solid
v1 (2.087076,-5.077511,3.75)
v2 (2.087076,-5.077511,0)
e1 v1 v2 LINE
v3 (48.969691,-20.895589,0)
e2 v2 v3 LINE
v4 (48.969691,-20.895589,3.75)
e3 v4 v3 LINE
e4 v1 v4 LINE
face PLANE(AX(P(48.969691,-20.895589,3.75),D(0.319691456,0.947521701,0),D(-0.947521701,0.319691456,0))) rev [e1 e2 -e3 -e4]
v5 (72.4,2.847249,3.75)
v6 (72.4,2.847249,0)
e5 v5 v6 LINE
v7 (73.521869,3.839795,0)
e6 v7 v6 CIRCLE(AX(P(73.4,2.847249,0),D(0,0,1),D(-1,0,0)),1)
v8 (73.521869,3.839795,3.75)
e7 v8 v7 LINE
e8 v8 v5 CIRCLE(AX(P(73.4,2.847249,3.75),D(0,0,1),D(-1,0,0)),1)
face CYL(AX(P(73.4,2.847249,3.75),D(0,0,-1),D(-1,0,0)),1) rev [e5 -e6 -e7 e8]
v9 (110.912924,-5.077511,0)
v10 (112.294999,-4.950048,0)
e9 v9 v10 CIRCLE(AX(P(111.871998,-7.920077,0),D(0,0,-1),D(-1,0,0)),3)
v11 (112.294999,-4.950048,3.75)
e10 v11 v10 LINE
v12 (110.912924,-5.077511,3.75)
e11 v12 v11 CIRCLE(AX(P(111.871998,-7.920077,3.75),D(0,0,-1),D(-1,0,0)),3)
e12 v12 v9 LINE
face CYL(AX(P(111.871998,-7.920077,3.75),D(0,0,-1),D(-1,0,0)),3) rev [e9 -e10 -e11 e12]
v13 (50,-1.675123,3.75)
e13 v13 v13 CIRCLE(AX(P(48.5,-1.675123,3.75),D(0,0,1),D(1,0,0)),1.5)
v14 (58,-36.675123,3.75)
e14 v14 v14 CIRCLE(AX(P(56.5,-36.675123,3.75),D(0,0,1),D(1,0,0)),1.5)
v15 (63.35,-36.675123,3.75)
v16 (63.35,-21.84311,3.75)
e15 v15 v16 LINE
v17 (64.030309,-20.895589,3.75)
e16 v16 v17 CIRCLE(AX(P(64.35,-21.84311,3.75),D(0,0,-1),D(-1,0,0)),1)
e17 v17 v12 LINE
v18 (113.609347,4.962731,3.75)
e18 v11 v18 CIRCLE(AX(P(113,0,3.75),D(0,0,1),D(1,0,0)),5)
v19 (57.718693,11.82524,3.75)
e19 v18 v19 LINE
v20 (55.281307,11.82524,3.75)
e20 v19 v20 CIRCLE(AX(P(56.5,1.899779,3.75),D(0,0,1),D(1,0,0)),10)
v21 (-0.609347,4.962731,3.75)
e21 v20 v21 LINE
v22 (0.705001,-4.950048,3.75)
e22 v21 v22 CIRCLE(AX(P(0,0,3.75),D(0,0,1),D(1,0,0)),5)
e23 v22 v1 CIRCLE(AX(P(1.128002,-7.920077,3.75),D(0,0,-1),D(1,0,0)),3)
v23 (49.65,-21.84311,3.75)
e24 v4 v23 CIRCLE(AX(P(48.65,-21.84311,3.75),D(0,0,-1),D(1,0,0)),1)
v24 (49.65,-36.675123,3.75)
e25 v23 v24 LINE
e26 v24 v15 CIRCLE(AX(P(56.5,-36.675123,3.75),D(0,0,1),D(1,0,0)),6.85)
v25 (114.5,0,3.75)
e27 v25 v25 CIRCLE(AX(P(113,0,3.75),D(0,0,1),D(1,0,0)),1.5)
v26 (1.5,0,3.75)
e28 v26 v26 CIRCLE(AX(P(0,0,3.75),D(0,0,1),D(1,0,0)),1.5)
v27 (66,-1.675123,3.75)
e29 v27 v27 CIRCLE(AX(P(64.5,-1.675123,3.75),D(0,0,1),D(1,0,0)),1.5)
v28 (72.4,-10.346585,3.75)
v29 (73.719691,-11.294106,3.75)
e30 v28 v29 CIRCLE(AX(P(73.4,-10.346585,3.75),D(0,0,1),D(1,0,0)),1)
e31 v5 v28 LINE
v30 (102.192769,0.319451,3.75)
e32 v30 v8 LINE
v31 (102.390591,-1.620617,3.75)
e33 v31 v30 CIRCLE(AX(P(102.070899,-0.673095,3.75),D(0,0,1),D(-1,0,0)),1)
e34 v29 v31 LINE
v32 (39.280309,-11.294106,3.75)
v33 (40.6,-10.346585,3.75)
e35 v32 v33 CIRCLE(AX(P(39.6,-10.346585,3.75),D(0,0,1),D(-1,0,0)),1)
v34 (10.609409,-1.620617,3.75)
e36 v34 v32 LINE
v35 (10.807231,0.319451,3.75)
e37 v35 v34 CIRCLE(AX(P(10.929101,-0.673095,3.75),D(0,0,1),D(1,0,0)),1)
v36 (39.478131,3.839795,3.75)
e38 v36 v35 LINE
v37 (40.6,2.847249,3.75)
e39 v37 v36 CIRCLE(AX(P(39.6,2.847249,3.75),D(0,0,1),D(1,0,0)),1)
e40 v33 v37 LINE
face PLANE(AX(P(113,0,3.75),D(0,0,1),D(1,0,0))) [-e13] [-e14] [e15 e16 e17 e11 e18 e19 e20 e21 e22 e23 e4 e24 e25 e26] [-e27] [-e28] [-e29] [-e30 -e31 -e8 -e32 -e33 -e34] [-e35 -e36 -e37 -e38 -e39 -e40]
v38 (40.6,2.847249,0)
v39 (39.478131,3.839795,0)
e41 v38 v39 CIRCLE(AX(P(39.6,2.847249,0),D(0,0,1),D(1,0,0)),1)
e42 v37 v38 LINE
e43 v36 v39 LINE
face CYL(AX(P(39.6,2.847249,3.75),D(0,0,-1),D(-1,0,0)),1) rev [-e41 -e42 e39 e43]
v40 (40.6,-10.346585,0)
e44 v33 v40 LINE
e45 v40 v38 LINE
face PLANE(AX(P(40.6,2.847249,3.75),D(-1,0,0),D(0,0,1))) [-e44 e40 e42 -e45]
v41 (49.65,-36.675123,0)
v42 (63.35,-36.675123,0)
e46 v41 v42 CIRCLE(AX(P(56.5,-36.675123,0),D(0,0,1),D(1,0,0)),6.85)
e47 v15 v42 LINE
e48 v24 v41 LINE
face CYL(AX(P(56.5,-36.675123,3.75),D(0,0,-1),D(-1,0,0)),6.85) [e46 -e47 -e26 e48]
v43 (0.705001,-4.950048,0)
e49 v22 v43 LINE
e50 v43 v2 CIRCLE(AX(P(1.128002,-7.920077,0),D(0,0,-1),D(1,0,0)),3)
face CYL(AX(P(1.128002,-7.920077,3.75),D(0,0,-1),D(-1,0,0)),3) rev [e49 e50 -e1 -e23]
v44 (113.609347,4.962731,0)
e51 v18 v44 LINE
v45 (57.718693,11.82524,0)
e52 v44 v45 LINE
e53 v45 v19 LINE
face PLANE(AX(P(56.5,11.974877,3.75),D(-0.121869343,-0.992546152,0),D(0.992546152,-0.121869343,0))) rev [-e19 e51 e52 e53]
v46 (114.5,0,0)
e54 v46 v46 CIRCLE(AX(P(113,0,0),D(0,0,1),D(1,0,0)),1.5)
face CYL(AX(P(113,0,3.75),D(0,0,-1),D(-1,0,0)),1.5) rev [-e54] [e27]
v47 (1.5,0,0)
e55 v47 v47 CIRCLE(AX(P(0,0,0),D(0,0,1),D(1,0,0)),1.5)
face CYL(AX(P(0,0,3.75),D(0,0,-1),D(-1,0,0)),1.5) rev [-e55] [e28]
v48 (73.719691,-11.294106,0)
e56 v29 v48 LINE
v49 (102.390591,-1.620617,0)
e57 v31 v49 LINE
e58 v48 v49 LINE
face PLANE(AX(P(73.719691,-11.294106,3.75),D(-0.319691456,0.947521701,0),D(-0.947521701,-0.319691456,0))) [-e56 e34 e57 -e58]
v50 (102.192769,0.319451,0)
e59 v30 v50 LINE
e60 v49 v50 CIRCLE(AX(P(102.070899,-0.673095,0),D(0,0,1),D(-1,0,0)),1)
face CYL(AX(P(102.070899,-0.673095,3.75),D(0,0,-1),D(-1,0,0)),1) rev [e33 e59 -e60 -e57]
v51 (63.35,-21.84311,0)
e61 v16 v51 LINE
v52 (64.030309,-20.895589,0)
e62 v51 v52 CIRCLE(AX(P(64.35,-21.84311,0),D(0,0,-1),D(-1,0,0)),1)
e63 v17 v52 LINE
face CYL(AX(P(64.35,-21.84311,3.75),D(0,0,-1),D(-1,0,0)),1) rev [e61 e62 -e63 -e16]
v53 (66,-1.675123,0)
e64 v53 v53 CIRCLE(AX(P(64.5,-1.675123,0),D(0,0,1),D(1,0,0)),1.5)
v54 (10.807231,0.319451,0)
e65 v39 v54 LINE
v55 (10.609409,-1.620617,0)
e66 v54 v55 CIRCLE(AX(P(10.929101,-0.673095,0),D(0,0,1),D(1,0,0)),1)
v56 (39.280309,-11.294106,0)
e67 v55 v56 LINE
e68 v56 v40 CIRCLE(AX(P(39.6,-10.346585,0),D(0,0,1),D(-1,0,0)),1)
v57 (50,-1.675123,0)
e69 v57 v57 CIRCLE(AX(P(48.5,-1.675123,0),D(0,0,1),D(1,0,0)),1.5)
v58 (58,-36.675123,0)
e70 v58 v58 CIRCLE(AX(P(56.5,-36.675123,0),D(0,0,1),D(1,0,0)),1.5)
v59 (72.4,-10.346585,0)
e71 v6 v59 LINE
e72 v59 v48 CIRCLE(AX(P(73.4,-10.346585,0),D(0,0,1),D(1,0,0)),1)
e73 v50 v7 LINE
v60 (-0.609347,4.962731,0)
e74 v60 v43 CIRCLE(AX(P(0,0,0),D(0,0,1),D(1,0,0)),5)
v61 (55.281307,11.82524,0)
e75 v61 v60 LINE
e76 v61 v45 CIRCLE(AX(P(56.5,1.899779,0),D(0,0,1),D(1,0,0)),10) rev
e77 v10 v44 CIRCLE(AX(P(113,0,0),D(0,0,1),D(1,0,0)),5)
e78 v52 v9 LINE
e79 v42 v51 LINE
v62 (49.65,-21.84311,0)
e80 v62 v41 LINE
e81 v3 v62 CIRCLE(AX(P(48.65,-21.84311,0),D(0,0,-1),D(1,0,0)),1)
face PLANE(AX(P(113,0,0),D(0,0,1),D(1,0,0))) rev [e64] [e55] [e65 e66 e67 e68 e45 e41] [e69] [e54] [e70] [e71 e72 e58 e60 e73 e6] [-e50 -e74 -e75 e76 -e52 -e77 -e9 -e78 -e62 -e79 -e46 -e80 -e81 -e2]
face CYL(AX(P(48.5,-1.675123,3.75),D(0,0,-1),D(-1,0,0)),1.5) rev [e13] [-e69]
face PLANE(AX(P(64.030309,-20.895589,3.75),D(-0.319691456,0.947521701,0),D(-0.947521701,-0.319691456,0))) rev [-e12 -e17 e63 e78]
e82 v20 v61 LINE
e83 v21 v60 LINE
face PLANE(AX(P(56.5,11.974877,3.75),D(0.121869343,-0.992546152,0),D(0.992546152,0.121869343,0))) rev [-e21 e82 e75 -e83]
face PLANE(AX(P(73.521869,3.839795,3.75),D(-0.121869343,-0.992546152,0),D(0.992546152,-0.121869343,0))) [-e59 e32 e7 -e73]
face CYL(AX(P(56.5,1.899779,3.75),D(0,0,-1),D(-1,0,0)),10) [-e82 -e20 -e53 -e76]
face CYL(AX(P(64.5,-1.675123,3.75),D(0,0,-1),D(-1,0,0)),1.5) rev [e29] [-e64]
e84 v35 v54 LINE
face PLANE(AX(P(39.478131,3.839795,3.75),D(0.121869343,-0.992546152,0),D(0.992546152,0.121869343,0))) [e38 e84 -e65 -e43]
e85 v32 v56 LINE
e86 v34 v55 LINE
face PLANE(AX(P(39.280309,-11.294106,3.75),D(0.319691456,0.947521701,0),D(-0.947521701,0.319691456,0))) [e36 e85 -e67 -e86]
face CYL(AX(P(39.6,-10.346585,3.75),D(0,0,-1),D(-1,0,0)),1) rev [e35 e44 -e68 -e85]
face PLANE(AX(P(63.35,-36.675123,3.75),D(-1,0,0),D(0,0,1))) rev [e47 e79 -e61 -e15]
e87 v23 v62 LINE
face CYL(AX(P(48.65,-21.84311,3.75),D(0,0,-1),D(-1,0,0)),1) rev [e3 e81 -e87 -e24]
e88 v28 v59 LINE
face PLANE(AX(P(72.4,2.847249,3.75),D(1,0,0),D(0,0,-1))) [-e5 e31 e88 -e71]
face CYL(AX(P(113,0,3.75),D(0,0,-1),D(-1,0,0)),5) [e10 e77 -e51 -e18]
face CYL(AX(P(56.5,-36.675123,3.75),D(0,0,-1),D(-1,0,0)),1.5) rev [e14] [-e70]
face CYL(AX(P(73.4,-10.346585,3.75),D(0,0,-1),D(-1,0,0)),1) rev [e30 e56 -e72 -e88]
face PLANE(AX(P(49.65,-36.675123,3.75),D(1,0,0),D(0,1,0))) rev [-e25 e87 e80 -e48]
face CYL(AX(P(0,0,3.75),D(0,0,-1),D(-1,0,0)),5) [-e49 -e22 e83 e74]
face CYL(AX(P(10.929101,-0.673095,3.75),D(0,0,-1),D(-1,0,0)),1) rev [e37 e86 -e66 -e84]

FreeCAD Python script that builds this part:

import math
import FreeCAD as App
import Part
import Sketcher
from FreeCAD import Vector
Q = App.Units.Quantity


def edges_at(feature, points):
    """Names of the edges that pass closest to the given points."""
    edges = feature.Shape.Edges
    near = lambda p: min(range(len(edges)), key=lambda i: edges[i].distToShape(Part.Vertex(*p))[0])
    return sorted({f"Edge{near(p) + 1}" for p in points})

doc = App.newDocument("Part")
body = doc.addObject("PartDesign::Body", "Body")

sketch1 = body.newObject("Sketcher::SketchObject", "Sketch")
sketch1.AttachmentSupport = (doc.getObject("XY_Plane"), [""])
sketch1.MapMode = "FlatFace"
sketch1.addGeometry([
    Part.LineSegment(Vector(56.5, 11.974877, 0), Vector(-0.609347, 4.962731, 0)),
    Part.ArcOfCircle(Part.Circle(Vector(0, 0, 0), Vector(0, 0, 1), 5), math.radians(97), math.radians(278.105729)),
    Part.ArcOfCircle(Part.Circle(Vector(1.128002, -7.920077, 0), Vector(0, 0, 1), 3), math.radians(71.355734), math.radians(98.105729)),
    Part.LineSegment(Vector(2.087076, -5.077511, 0), Vector(48.969691, -20.895589, 0)),
    Part.ArcOfCircle(Part.Circle(Vector(48.65, -21.84311, 0), Vector(0, 0, 1), 1), math.radians(0), math.radians(71.355734)),
    Part.LineSegment(Vector(49.65, -21.84311, 0), Vector(49.65, -36.675123, 0)),
    Part.ArcOfCircle(Part.Circle(Vector(56.5, -36.675123, 0), Vector(0, 0, 1), 6.85), math.radians(180), math.radians(360)),
    Part.LineSegment(Vector(63.35, -36.675123, 0), Vector(63.35, -21.84311, 0)),
    Part.ArcOfCircle(Part.Circle(Vector(64.35, -21.84311, 0), Vector(0, 0, 1), 1), math.radians(108.644266), math.radians(180)),
    Part.LineSegment(Vector(64.030309, -20.895589, 0), Vector(110.912924, -5.077511, 0)),
    Part.ArcOfCircle(Part.Circle(Vector(111.871998, -7.920077, 0), Vector(0, 0, 1), 3), math.radians(81.894271), math.radians(108.644266)),
    Part.ArcOfCircle(Part.Circle(Vector(113, 0, 0), Vector(0, 0, 1), 5), math.radians(-98.105729), math.radians(83)),
    Part.LineSegment(Vector(113.609347, 4.962731, 0), Vector(56.5, 11.974877, 0)),
    Part.Circle(Vector(56.5, -36.675123, 0), Vector(0, 0, 1), 1.5),
    Part.ArcOfCircle(Part.Circle(Vector(39.6, -10.346585, 0), Vector(0, 0, 1), 1), math.radians(-108.644267), math.radians(0)),
    Part.LineSegment(Vector(39.280309, -11.294106, 0), Vector(10.609409, -1.620617, 0)),
    Part.ArcOfCircle(Part.Circle(Vector(10.929101, -0.673095, 0), Vector(0, 0, 1), 1), math.radians(97), math.radians(251.355734)),
    Part.LineSegment(Vector(10.807231, 0.319451, 0), Vector(39.478131, 3.839795, 0)),
    Part.ArcOfCircle(Part.Circle(Vector(39.6, 2.847249, 0), Vector(0, 0, 1), 1), math.radians(0), math.radians(97)),
    Part.LineSegment(Vector(40.6, 2.847249, 0), Vector(40.6, -10.346585, 0)),
    Part.Circle(Vector(0, 0, 0), Vector(0, 0, 1), 1.5),
    Part.Circle(Vector(48.5, -1.675123, 0), Vector(0, 0, 1), 1.5),
    Part.Circle(Vector(64.5, -1.675123, 0), Vector(0, 0, 1), 1.5),
    Part.LineSegment(Vector(102.390591, -1.620617, 0), Vector(73.719691, -11.294106, 0)),
    Part.ArcOfCircle(Part.Circle(Vector(73.4, -10.346585, 0), Vector(0, 0, 1), 1), math.radians(180), math.radians(288.644267)),
    Part.LineSegment(Vector(72.4, -10.346585, 0), Vector(72.4, 2.847249, 0)),
    Part.ArcOfCircle(Part.Circle(Vector(73.4, 2.847249, 0), Vector(0, 0, 1), 1), math.radians(83), math.radians(180)),
    Part.LineSegment(Vector(73.521869, 3.839795, 0), Vector(102.192769, 0.319451, 0)),
    Part.ArcOfCircle(Part.Circle(Vector(102.070899, -0.673095, 0), Vector(0, 0, 1), 1), math.radians(-71.355734), math.radians(83)),
    Part.Circle(Vector(113, 0, 0), Vector(0, 0, 1), 1.5),
], False)
sketch1.addConstraint([
    Sketcher.Constraint("Tangent", 0, 2, 1, 1),
    Sketcher.Constraint("Tangent", 1, 2, 2, 2),
    Sketcher.Constraint("Tangent", 2, 1, 3, 1),
    Sketcher.Constraint("Tangent", 3, 2, 4, 2),
    Sketcher.Constraint("Tangent", 4, 1, 5, 1),
    Sketcher.Constraint("Tangent", 5, 2, 6, 1),
    Sketcher.Constraint("Tangent", 6, 2, 7, 1),
    Sketcher.Constraint("Tangent", 7, 2, 8, 2),
    Sketcher.Constraint("Tangent", 8, 1, 9, 1),
    Sketcher.Constraint("Tangent", 9, 2, 10, 2),
    Sketcher.Constraint("Tangent", 10, 1, 11, 1),
    Sketcher.Constraint("Tangent", 11, 2, 12, 1),
    Sketcher.Constraint("Coincident", 12, 2, 0, 1),
    Sketcher.Constraint("Tangent", 14, 1, 15, 1),
    Sketcher.Constraint("Tangent", 15, 2, 16, 2),
    Sketcher.Constraint("Tangent", 16, 1, 17, 1),
    Sketcher.Constraint("Tangent", 17, 2, 18, 2),
    Sketcher.Constraint("Tangent", 18, 1, 19, 1),
    Sketcher.Constraint("Tangent", 19, 2, 14, 2),
    Sketcher.Constraint("Tangent", 23, 2, 24, 2),
    Sketcher.Constraint("Tangent", 24, 1, 25, 1),
    Sketcher.Constraint("Tangent", 25, 2, 26, 2),
    Sketcher.Constraint("Tangent", 26, 1, 27, 1),
    Sketcher.Constraint("Tangent", 27, 2, 28, 2),
    Sketcher.Constraint("Tangent", 28, 1, 23, 1),
    Sketcher.Constraint("Vertical", 5),
    Sketcher.Constraint("Vertical", 7),
    Sketcher.Constraint("Vertical", 19),
    Sketcher.Constraint("Vertical", 25),
    Sketcher.Constraint("Coincident", 1, 3, -1, 1),
    Sketcher.Constraint("Coincident", 20, 3, -1, 1),
    Sketcher.Constraint("Coincident", 13, 3, 6, 3),
    Sketcher.Constraint("Coincident", 29, 3, 11, 3),
    Sketcher.Constraint("Equal", 4, 8),
    Sketcher.Constraint("Equal", 2, 10),
    Sketcher.Constraint("Equal", 1, 11),
    Sketcher.Constraint("Equal", 8, 14),
    Sketcher.Constraint("Equal", 14, 16),
    Sketcher.Constraint("Equal", 16, 18),
    Sketcher.Constraint("Equal", 13, 20),
    Sketcher.Constraint("Equal", 20, 21),
    Sketcher.Constraint("Equal", 21, 22),
    Sketcher.Constraint("Equal", 18, 24),
    Sketcher.Constraint("Equal", 24, 26),
    Sketcher.Constraint("Equal", 26, 28),
    Sketcher.Constraint("Equal", 22, 29),
    Sketcher.Constraint("PointOnObject", 11, 3, -1),
    Sketcher.Constraint("Parallel", 3, 15),
    Sketcher.Constraint("Parallel", 0, 17),
    Sketcher.Constraint("Parallel", 9, 23),
    Sketcher.Constraint("Parallel", 12, 27),
    Sketcher.Constraint("Horizontal", 4, 3, 8, 3),
    Sketcher.Constraint("Horizontal", 2, 3, 10, 3),
    Sketcher.Constraint("Horizontal", 21, 3, 22, 3),
    Sketcher.Constraint("Horizontal", 14, 3, 24, 3),
    Sketcher.Constraint("Horizontal", 18, 3, 26, 3),
    Sketcher.Constraint("Horizontal", 16, 3, 28, 3),
    Sketcher.Constraint("Horizontal", 2, 1, 9, 2),
    Sketcher.Constraint("Diameter", 13, 3.0),
    Sketcher.Constraint("Radius", 1, 5.0),
    Sketcher.Constraint("Radius", 2, 3.0),
    Sketcher.Constraint("Radius", 4, 1.0),
    Sketcher.Constraint("Angle", 0, Q("-173 deg")),
    Sketcher.Constraint("Radius", 6, 6.85),
    Sketcher.Constraint("DistanceX", -1, 1, 11, 3, 113.0),
    Sketcher.Constraint("DistanceX", 21, 3, 6, 3, 8.0),
    Sketcher.Constraint("DistanceY", 6, 3, 21, 3, 35.0),
    Sketcher.Constraint("DistanceX", 21, 3, 22, 3, 16.0),
    Sketcher.Constraint("DistanceX", -1, 1, 14, 3, 39.6),
    Sketcher.Constraint("DistanceX", -1, 1, 24, 3, 73.4),
    Sketcher.Constraint("DistanceY", 21, 3, 12, 2, 13.65),
    Sketcher.Constraint("DistanceX", -1, 1, 2, 3, 1.128002),
    Sketcher.Constraint("Distance", 3, 49.4792),
    Sketcher.Constraint("DistanceX", -1, 1, 16, 3, 10.929101),
    Sketcher.Constraint("DistanceY", 10, 1, 27, 2, 5.269499),
])
pad1 = body.newObject("PartDesign::Pad", "Pad")
pad1.Profile = sketch1
pad1.Length = 3.75
doc.recompute()

fillet = body.newObject("PartDesign::Fillet", "Fillet")
fillet.Base = (pad1, edges_at(pad1, [(56.5, 11.975, 1.875)]))
fillet.Radius = 10

doc.recompute()
